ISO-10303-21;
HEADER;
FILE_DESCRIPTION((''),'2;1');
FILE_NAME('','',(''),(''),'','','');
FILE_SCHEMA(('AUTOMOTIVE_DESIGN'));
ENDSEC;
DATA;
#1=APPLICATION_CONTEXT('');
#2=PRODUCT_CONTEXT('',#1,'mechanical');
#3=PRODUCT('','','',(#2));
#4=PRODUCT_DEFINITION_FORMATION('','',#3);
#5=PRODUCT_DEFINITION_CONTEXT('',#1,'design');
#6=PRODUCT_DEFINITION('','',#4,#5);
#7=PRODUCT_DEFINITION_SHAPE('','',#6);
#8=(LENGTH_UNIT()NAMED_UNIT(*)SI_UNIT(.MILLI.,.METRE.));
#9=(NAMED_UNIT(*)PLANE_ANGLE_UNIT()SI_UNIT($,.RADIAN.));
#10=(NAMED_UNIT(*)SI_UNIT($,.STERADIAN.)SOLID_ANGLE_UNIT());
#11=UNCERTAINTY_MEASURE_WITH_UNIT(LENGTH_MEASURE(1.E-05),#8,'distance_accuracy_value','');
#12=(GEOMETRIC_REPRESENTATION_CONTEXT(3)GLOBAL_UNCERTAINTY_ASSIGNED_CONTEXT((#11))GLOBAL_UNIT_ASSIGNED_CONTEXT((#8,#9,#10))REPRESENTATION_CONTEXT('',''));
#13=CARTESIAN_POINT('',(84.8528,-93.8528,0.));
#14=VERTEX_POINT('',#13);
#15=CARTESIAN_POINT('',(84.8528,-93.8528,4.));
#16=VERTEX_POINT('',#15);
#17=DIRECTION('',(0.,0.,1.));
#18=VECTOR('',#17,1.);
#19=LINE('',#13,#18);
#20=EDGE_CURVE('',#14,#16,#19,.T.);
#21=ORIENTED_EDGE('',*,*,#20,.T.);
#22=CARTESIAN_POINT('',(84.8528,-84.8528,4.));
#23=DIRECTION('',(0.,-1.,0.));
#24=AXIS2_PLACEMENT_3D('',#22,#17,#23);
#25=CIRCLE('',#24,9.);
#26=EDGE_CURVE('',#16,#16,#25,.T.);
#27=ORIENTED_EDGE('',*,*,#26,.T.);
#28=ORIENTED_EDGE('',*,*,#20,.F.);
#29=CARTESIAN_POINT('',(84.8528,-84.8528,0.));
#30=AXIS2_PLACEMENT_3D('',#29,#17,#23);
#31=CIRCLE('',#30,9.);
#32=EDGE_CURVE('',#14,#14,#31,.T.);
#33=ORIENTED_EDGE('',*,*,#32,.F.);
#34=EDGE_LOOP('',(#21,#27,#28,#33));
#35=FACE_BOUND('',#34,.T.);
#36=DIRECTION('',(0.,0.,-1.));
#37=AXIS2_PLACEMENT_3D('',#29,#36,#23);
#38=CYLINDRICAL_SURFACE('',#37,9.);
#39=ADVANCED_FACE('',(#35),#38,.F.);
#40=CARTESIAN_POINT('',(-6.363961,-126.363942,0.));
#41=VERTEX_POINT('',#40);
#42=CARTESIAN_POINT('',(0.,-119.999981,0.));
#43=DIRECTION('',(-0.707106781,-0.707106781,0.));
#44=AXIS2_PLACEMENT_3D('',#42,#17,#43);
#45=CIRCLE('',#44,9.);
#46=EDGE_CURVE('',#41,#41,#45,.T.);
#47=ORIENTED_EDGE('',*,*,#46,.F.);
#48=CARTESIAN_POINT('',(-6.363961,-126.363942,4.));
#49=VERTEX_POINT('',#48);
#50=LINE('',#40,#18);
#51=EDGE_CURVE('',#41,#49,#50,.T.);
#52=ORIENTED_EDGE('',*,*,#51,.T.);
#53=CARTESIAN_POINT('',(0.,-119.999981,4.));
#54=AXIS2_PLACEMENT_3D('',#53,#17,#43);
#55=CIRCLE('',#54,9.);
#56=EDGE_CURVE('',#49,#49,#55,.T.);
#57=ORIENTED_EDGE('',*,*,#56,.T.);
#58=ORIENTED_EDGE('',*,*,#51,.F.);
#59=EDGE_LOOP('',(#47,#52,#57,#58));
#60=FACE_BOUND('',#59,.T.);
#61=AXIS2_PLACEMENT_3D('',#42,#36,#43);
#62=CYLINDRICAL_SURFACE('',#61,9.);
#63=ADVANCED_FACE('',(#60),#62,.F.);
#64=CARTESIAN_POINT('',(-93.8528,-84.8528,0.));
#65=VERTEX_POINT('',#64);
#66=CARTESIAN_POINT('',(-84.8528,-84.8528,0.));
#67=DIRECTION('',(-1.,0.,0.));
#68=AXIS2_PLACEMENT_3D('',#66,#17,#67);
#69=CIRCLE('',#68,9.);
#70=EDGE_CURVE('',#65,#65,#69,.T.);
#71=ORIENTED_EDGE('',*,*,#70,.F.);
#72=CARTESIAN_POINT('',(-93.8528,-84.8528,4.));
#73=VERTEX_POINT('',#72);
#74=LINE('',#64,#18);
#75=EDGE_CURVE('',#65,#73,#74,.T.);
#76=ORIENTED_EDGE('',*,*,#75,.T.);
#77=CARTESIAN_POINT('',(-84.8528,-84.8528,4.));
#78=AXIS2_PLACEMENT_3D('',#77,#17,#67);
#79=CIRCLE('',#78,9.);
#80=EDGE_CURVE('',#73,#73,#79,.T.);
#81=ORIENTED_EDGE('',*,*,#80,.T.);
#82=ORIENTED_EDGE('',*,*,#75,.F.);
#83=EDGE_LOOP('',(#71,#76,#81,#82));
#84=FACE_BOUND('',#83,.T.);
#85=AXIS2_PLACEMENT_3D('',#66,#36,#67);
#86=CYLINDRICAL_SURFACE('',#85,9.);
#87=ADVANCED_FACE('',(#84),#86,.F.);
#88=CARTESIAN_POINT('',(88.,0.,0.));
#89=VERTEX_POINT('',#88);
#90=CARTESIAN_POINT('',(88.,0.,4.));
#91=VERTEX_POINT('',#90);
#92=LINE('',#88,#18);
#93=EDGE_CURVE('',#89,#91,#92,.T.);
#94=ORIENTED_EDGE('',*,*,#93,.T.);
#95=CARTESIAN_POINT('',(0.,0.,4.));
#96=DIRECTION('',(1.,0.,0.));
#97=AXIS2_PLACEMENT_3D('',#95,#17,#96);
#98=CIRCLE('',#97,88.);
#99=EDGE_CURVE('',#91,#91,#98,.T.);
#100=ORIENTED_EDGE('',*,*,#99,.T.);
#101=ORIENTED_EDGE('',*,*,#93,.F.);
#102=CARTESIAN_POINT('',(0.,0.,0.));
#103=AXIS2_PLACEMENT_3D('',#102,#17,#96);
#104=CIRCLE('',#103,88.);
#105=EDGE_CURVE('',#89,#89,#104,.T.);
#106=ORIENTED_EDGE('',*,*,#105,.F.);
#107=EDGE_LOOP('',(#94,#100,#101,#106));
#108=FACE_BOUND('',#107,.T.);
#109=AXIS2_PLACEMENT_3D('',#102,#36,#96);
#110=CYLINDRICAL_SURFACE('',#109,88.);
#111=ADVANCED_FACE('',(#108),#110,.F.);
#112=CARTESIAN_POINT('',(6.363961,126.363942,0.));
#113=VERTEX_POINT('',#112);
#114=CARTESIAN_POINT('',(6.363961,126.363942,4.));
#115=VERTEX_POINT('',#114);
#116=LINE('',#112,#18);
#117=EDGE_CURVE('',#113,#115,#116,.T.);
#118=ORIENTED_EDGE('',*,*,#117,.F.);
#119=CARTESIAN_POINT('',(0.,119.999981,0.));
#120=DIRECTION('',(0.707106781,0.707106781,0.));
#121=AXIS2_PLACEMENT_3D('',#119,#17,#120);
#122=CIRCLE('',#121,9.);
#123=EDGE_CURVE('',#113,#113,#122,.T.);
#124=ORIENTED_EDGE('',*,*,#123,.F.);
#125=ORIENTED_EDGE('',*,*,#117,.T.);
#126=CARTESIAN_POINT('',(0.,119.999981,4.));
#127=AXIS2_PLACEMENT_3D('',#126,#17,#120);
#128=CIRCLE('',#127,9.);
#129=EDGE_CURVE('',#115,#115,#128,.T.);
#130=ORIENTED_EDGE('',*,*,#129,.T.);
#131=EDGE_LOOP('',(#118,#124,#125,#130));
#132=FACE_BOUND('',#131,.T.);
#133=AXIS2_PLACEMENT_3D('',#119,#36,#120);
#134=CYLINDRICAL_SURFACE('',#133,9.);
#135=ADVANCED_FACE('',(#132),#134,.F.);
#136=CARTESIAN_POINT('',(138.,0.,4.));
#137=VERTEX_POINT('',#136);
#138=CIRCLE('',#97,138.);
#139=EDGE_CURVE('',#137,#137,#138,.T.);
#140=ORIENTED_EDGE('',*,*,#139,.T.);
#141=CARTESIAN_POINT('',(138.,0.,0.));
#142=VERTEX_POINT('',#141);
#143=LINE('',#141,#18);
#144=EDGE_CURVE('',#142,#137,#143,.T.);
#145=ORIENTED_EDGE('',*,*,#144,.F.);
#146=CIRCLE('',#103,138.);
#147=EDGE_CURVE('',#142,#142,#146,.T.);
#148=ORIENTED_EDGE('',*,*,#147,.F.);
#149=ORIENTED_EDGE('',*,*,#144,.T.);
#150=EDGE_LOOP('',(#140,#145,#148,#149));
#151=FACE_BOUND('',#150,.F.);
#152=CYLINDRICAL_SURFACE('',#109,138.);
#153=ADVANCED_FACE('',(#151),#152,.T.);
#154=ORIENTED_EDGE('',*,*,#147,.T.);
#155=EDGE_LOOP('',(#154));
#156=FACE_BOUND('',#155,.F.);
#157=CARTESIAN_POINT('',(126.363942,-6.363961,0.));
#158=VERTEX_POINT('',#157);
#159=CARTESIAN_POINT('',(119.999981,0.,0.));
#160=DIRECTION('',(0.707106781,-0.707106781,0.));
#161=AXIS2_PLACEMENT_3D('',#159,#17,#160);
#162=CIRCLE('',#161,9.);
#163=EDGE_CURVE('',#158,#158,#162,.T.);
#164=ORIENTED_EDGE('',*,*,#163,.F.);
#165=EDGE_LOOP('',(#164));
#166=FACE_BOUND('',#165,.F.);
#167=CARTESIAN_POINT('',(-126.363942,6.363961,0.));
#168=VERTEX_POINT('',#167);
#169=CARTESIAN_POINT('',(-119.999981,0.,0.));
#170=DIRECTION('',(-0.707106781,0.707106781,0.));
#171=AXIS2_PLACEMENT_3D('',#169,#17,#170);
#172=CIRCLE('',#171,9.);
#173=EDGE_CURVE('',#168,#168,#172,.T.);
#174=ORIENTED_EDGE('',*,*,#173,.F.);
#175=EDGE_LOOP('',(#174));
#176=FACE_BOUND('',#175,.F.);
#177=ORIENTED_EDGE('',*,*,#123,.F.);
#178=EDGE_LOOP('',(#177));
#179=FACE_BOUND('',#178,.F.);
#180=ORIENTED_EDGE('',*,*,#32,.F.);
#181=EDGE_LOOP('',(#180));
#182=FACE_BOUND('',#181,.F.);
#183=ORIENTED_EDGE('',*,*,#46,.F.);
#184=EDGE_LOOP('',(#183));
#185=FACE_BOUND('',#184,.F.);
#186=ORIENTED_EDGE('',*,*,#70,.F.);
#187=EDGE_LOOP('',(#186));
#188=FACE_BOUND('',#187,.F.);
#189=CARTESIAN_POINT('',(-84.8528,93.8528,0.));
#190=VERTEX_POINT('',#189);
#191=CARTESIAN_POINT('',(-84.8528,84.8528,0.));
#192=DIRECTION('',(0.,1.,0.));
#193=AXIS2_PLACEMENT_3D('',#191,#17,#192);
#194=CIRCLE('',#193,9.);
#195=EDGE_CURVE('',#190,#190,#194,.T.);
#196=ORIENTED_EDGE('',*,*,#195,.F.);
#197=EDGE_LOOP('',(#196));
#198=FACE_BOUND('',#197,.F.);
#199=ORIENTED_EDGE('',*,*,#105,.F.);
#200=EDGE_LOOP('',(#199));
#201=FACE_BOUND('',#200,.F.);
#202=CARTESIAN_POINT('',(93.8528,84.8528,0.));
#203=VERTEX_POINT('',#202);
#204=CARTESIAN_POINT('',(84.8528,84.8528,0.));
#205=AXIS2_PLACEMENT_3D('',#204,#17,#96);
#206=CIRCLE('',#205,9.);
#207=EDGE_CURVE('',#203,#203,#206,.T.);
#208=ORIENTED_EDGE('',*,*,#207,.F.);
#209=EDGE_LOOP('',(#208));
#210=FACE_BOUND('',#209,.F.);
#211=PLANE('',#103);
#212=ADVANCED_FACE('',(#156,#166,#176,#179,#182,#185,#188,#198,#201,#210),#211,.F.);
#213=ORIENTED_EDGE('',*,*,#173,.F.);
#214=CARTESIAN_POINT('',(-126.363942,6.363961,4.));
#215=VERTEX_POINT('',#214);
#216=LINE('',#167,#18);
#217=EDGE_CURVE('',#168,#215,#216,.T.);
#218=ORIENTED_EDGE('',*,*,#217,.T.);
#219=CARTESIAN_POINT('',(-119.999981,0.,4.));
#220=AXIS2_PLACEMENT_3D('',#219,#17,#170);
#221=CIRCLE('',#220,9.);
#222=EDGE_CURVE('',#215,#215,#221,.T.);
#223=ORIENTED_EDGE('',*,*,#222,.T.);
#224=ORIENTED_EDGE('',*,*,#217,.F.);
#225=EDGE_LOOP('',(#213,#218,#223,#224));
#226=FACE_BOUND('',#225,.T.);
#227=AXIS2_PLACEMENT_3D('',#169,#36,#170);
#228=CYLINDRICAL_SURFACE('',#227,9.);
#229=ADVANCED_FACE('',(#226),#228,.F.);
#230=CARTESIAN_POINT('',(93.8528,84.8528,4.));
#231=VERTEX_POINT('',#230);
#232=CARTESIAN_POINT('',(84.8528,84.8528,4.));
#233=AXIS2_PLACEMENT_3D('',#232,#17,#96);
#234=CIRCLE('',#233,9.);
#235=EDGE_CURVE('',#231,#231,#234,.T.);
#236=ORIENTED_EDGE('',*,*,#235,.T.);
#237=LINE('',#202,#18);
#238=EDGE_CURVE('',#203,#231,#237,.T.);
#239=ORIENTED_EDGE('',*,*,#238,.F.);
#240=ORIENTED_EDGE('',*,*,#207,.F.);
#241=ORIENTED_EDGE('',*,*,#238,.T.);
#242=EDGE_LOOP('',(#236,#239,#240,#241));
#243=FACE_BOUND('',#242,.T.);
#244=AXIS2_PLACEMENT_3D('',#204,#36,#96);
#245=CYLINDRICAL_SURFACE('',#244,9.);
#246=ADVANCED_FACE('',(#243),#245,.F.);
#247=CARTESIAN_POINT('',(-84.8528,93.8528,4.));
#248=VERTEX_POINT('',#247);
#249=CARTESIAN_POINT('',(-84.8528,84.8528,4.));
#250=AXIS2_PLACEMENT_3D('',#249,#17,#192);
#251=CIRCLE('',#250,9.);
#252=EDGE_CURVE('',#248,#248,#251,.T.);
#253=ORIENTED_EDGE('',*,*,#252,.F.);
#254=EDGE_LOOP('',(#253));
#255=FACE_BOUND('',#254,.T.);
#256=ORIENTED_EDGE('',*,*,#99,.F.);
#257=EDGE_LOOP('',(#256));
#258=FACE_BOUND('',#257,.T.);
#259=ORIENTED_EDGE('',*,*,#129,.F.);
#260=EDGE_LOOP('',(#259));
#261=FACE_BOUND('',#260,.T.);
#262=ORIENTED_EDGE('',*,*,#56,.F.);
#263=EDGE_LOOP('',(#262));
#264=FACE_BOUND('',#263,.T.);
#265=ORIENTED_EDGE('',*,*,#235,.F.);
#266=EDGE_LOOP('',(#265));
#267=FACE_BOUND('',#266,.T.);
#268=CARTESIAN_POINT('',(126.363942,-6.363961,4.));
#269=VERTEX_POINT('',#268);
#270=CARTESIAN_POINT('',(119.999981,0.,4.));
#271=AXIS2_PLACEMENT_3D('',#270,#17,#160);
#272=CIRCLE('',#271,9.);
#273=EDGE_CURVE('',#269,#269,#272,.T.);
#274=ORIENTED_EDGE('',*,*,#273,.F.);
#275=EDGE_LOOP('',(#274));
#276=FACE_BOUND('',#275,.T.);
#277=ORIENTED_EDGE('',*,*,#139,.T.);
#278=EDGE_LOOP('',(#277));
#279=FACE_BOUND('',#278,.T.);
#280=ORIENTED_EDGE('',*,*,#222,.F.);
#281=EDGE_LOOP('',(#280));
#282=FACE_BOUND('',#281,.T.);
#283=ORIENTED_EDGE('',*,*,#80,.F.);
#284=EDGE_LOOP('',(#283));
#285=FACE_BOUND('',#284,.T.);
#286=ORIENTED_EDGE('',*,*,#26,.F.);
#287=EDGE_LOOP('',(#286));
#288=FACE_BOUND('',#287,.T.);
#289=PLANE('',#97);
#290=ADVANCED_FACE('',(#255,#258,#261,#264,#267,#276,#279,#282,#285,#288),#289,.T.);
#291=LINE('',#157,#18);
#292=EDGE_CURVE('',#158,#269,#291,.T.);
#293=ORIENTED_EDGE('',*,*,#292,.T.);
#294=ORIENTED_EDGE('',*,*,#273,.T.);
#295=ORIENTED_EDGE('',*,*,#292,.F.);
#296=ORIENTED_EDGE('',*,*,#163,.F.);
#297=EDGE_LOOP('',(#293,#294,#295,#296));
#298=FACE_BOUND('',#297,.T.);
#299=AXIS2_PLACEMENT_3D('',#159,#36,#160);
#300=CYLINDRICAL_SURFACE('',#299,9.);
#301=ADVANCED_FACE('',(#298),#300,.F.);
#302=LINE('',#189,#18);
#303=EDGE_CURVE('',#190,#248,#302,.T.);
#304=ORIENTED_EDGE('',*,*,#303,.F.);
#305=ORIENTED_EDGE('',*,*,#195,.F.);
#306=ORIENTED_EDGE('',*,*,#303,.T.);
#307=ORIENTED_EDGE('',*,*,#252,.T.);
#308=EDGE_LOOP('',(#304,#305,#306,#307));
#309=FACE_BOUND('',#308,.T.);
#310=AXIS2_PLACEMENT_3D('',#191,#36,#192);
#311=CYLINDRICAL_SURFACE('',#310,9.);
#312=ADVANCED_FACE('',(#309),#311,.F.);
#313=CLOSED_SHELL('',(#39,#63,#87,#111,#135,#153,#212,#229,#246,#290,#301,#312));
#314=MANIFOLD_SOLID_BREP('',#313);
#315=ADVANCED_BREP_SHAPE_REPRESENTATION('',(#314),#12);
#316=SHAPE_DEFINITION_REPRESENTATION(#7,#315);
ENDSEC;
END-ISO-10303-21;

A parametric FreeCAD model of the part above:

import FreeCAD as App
import Part
import Sketcher
from FreeCAD import Vector
Q = App.Units.Quantity

doc = App.newDocument("Part")
body = doc.addObject("PartDesign::Body", "Body")

# Sketch on XY plane
sketch1 = body.newObject("Sketcher::SketchObject", "Sketch")
sketch1.AttachmentSupport = (doc.getObject("XY_Plane"), [""])
sketch1.MapMode = "FlatFace"
sketch1.addGeometry([
    Part.Circle(Vector(0, 0, 0), Vector(0, 0, 1), 138),
    Part.Circle(Vector(0, 0, 0), Vector(0, 0, 1), 88),
], False)
sketch1.addConstraint([
    Sketcher.Constraint("Coincident", 0, 3, -1, 1),
    Sketcher.Constraint("Coincident", 1, 3, -1, 1),
    Sketcher.Constraint("Diameter", 0, Q("276 mm")),
    Sketcher.Constraint("Diameter", 1, Q("176 mm")),
])
pad1 = body.newObject("PartDesign::Pad", "Pad")
pad1.Profile = sketch1
pad1.Length = 4

# Sketch on XY plane
sketch2 = body.newObject("Sketcher::SketchObject", "Sketch001")
sketch2.AttachmentSupport = (doc.getObject("XY_Plane"), [""])
sketch2.MapMode = "FlatFace"
sketch2.addGeometry(Part.Circle(Vector(85, 85, 0), Vector(0, 0, 1), 9), False)
sketch2.addConstraint([
    Sketcher.Constraint("Diameter", 0, Q("18 mm")),
    Sketcher.Constraint("DistanceX", -1, 1, 0, 3, Q("84.8528 mm")),
    Sketcher.Constraint("DistanceY", -1, 1, 0, 3, Q("84.8528 mm")),
])
pocket1 = body.newObject("PartDesign::Pocket", "Pocket")
pocket1.Profile = sketch2
pocket1.Length = 4
pocket1.Reversed = True
doc.recompute()

polarpattern = body.newObject("PartDesign::PolarPattern", "PolarPattern")
polarpattern.Originals = [pocket1]
polarpattern.Axis = (doc.getObject("Z_Axis"), [""])
polarpattern.Angle = 360
polarpattern.Occurrences = 8
body.Tip = polarpattern

doc.recompute()
